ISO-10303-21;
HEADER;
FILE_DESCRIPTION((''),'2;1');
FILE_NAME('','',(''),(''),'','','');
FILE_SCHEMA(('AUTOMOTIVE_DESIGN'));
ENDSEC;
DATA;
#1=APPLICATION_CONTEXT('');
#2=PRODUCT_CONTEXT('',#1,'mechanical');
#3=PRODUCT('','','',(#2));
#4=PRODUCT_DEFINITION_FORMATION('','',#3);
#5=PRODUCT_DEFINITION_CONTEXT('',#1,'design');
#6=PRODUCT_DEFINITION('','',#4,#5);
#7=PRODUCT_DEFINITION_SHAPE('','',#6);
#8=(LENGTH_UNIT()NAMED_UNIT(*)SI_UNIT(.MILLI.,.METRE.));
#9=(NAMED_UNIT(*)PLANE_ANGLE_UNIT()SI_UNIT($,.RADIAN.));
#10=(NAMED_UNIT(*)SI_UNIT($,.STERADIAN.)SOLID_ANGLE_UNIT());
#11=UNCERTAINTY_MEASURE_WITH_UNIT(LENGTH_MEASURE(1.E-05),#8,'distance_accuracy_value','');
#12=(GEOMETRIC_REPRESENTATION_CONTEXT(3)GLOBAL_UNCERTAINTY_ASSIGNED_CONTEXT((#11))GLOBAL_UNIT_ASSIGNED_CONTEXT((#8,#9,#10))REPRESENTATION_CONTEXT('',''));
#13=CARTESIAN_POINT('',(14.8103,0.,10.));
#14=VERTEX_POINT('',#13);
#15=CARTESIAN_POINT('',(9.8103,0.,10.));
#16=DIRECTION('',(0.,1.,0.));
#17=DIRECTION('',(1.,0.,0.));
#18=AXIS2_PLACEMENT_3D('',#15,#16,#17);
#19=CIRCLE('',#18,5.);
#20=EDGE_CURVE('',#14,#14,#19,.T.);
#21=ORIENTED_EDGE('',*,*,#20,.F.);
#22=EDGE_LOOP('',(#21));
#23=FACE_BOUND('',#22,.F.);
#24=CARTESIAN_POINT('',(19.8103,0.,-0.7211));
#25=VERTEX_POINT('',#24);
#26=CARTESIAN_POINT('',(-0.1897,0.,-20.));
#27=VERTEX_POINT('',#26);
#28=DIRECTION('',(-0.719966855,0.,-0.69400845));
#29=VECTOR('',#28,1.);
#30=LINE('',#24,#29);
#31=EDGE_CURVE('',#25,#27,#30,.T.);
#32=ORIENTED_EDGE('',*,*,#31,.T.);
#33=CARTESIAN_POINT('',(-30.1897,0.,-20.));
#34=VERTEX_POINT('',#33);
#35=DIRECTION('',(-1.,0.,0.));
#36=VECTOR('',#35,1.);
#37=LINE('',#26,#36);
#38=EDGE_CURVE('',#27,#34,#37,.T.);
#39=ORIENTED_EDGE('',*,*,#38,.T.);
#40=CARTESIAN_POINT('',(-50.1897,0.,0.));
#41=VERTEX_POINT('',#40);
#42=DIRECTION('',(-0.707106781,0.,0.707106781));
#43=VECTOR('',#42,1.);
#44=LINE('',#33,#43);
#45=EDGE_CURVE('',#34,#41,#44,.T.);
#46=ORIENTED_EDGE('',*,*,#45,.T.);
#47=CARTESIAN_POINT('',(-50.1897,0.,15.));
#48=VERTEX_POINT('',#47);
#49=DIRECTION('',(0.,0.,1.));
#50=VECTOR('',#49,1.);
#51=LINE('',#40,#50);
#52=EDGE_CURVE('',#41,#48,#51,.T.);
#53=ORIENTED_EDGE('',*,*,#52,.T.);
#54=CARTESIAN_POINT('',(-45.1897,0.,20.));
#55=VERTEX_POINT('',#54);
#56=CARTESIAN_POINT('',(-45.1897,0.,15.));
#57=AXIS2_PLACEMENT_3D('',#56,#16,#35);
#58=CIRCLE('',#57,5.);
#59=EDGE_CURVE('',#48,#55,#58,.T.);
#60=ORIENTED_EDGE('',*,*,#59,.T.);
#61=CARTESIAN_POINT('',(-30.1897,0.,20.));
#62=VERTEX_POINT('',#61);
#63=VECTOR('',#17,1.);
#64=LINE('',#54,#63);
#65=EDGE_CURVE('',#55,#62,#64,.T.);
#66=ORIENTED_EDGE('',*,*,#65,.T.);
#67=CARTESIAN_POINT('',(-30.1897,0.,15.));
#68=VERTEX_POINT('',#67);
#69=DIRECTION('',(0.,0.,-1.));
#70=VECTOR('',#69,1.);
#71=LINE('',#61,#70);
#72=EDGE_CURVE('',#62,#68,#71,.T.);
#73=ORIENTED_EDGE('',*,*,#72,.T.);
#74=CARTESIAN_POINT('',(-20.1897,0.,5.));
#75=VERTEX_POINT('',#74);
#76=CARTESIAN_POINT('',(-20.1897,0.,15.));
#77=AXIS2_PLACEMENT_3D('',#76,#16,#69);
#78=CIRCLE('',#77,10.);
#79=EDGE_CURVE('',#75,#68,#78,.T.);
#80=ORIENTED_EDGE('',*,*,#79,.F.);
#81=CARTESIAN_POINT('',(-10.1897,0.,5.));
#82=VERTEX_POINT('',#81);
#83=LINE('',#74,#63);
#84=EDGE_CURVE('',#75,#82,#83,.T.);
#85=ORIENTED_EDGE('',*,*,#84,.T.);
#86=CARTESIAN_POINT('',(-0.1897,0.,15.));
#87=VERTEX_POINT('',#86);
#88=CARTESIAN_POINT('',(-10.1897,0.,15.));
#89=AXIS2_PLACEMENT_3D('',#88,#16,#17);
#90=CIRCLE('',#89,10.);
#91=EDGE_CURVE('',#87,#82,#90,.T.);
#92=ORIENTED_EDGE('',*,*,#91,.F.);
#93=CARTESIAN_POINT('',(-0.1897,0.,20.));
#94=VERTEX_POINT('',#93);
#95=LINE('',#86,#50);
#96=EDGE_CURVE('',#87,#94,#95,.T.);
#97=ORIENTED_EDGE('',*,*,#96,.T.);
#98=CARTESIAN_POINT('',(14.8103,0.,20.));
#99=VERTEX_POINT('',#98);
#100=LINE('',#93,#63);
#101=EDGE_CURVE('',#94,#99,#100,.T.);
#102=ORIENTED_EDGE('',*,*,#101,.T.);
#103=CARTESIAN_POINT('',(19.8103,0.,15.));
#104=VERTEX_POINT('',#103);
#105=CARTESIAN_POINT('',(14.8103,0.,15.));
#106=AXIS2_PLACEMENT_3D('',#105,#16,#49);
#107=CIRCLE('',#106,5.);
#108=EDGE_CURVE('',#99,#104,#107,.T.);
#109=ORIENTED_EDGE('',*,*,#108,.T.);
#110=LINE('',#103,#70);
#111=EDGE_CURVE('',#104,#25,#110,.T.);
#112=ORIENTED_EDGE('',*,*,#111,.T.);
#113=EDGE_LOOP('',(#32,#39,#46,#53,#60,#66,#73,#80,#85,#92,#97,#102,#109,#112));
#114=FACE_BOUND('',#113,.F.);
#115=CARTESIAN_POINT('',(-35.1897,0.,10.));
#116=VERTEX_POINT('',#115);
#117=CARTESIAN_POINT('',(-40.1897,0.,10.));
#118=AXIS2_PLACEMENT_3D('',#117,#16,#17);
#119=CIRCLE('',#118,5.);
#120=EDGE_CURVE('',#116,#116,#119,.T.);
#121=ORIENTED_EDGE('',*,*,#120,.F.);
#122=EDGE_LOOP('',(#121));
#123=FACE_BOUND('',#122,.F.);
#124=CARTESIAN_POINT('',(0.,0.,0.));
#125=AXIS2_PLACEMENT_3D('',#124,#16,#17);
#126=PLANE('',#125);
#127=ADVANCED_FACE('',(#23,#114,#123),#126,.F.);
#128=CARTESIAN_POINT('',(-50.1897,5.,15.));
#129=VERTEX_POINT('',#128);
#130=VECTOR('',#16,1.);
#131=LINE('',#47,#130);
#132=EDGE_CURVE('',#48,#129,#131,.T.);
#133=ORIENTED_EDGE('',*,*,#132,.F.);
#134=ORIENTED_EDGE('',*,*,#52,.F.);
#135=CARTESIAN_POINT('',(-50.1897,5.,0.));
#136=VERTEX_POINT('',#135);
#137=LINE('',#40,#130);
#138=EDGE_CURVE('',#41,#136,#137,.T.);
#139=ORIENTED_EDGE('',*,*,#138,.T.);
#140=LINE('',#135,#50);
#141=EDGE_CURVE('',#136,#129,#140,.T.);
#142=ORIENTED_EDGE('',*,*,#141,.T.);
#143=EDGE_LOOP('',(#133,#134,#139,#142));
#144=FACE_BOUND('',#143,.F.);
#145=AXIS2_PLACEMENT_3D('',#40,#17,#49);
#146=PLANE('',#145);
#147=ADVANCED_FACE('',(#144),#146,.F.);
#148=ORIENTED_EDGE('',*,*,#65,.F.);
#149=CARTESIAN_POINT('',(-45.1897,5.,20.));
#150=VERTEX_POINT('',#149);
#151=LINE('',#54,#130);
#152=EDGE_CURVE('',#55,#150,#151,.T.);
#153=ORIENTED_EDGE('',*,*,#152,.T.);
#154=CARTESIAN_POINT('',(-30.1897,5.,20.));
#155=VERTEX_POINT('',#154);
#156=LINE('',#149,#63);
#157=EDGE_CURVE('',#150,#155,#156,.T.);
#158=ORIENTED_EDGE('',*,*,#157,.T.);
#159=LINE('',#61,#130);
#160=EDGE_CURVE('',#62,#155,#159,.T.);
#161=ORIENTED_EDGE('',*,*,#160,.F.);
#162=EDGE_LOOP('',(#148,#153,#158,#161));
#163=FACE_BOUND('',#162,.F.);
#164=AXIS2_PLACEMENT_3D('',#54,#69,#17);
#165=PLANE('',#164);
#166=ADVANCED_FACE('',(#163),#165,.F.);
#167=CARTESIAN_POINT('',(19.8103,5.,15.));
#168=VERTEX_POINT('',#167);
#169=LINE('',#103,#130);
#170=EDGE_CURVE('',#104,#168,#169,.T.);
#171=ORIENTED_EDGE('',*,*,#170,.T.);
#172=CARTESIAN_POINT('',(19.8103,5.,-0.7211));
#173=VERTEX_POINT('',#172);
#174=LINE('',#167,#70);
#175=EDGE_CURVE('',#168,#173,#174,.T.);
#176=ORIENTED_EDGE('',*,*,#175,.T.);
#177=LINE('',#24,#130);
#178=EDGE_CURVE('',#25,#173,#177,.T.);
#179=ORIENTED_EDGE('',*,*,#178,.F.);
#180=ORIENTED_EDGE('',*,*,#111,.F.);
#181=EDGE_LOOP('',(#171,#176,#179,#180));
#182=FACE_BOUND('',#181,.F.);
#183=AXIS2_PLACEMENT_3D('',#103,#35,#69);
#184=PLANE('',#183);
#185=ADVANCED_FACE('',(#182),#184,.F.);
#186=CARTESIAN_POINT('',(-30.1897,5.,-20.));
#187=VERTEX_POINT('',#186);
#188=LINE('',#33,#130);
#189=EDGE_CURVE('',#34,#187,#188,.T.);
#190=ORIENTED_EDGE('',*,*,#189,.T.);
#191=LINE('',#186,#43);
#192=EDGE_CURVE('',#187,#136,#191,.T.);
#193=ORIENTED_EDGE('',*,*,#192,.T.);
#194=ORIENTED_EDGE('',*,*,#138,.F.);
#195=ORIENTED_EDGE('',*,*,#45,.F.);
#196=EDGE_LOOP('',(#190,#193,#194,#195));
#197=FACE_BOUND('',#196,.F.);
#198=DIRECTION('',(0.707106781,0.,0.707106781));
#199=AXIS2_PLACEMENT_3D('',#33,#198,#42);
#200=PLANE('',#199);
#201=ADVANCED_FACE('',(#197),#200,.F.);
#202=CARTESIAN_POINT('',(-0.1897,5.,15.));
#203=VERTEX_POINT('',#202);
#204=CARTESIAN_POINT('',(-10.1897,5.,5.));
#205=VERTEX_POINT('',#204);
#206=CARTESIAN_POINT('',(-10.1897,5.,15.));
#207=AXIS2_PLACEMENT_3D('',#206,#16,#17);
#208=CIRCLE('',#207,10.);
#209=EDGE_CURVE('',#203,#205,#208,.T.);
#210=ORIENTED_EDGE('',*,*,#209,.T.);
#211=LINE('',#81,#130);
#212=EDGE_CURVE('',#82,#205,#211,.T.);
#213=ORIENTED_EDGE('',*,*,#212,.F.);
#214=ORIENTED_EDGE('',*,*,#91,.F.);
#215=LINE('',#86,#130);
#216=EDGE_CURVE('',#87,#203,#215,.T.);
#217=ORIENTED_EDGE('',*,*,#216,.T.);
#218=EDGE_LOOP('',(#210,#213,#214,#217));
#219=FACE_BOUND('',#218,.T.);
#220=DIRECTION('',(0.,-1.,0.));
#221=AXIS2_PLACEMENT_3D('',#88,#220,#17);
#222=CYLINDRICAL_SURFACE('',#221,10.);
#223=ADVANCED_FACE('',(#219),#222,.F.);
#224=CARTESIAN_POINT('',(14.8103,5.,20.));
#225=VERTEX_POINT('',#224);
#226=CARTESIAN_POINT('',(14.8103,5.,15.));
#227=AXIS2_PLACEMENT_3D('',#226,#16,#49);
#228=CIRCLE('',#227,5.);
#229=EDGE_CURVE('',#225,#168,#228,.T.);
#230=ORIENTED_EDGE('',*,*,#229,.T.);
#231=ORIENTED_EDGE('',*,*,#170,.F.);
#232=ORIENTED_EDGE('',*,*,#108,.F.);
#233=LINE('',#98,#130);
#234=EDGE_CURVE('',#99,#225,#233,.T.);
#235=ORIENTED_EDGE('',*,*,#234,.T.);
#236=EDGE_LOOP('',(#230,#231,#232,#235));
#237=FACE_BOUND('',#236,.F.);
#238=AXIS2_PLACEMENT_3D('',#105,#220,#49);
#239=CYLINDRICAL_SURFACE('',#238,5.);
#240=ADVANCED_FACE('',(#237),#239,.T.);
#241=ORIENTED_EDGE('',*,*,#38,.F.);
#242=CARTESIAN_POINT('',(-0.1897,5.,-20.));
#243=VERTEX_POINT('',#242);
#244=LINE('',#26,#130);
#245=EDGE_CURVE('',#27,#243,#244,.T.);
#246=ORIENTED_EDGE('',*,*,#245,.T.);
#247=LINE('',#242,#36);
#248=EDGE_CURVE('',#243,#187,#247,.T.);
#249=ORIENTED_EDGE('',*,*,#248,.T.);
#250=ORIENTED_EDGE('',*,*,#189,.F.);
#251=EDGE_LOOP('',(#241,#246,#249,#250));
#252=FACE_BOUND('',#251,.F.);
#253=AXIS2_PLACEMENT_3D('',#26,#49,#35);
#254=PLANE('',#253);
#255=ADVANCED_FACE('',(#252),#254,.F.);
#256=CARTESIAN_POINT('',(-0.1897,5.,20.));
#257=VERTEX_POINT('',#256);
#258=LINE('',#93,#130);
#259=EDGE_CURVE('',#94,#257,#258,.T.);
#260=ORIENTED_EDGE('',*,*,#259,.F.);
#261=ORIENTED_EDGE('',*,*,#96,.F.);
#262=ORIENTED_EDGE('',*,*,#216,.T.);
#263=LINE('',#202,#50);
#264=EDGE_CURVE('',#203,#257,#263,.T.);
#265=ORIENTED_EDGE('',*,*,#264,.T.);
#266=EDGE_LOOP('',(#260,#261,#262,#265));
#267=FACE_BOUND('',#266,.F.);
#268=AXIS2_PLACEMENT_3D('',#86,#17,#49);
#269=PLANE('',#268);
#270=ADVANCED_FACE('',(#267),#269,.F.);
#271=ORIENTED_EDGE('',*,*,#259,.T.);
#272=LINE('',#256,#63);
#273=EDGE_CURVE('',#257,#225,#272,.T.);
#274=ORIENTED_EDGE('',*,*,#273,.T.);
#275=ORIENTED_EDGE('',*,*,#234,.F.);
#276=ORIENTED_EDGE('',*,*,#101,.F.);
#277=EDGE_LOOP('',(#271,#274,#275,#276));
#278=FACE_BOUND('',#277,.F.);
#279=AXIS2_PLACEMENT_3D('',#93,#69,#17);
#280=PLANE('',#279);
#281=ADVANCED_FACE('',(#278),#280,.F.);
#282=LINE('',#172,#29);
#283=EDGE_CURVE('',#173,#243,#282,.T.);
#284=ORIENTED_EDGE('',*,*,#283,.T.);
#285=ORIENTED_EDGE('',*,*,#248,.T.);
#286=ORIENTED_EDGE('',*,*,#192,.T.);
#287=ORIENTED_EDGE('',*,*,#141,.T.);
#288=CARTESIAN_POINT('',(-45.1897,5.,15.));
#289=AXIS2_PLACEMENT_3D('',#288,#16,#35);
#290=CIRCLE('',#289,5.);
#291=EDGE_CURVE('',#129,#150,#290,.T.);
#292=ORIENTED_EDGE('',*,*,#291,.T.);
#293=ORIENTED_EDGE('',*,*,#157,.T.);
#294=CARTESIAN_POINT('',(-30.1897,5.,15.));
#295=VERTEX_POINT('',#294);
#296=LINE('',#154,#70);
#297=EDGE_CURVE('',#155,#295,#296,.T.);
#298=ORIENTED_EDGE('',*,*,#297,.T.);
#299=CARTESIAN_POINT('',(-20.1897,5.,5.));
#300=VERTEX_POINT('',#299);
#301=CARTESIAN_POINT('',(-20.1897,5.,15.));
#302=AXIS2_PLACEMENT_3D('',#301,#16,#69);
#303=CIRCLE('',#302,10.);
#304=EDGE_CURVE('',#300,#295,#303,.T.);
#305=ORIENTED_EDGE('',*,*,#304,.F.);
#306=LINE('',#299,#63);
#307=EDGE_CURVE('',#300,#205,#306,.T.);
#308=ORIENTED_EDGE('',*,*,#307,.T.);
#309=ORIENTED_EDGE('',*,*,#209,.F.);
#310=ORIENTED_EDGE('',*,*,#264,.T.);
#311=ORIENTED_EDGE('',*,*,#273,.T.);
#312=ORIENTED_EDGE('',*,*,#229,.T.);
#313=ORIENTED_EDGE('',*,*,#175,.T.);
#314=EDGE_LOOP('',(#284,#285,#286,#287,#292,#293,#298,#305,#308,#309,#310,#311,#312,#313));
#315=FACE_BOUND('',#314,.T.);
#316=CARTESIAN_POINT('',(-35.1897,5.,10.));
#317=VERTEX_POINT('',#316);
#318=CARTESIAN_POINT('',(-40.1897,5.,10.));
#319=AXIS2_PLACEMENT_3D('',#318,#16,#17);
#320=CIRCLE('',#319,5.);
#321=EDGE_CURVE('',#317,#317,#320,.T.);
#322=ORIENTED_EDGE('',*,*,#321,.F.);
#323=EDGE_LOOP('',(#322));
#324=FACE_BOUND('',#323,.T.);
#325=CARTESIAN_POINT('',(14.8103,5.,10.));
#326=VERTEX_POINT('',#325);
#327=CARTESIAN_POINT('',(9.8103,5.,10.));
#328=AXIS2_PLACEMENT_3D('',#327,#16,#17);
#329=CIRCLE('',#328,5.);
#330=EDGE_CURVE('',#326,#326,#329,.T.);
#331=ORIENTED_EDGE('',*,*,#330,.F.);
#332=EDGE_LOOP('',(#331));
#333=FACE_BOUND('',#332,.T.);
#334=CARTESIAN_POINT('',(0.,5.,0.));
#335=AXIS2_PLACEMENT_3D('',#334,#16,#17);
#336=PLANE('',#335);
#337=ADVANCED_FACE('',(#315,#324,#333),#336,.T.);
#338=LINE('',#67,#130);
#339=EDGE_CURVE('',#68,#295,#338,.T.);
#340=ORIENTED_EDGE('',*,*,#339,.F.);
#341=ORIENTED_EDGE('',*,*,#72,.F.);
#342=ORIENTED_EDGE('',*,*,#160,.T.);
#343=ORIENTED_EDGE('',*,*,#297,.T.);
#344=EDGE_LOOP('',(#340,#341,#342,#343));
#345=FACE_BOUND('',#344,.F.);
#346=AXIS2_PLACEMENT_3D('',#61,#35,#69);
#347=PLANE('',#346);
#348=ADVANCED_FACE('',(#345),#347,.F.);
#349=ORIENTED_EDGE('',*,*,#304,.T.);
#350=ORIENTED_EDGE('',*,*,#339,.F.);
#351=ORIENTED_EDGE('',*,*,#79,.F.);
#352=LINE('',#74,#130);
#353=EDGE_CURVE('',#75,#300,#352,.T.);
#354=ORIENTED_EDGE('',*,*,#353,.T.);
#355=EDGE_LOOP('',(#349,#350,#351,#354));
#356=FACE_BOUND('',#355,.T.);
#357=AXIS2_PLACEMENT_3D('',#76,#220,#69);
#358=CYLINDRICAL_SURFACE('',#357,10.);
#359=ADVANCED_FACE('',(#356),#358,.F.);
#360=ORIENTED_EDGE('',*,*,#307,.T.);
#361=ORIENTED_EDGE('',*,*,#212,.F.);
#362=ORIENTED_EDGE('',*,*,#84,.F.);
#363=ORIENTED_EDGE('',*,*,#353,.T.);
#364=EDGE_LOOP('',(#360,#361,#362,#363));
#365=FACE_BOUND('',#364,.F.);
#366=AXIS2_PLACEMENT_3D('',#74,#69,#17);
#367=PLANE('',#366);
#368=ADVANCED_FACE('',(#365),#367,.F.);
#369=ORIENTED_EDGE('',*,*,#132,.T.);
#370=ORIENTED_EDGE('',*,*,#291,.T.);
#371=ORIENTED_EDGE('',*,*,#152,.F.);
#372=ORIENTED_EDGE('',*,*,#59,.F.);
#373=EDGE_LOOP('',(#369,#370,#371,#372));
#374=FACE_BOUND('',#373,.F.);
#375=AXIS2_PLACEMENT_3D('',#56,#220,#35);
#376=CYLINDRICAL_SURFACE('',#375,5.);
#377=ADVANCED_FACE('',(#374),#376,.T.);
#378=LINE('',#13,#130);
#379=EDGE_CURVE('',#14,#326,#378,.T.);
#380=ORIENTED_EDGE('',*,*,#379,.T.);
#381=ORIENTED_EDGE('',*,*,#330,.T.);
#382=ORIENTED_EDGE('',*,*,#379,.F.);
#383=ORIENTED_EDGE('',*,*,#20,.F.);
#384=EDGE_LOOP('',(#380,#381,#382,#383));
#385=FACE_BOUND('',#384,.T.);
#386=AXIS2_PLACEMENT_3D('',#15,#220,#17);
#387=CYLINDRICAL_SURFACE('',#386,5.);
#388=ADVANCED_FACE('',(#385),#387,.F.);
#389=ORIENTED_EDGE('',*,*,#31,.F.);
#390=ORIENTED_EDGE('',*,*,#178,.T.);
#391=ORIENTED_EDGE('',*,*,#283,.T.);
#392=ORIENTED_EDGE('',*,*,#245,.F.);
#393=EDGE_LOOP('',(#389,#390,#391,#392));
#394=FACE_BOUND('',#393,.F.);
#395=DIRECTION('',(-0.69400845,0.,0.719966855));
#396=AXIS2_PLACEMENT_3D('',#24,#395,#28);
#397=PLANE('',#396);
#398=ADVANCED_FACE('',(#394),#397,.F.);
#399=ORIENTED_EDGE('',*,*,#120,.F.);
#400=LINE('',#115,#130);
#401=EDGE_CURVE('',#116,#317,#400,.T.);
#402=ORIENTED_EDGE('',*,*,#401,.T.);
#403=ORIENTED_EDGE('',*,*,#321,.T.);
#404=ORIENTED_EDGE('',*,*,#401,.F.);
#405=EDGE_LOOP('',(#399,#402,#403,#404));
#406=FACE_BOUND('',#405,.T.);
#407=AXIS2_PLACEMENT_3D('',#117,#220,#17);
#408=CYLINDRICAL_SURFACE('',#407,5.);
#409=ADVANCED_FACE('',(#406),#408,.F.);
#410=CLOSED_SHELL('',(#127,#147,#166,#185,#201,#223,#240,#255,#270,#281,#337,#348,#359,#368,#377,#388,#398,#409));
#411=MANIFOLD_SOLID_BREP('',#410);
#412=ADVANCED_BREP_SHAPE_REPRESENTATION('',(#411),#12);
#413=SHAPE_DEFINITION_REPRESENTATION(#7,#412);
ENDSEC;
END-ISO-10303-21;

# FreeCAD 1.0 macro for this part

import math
import FreeCAD as App
import Part
import Sketcher

V = App.Vector

doc = App.newDocument("Part")
body = doc.addObject("PartDesign::Body", "Body")

# Sketch on XZ plane
sketch1 = body.newObject("Sketcher::SketchObject", "Sketch")
sketch1.AttachmentSupport = (doc.getObject("XZ_Plane"), [""])
sketch1.MapMode = "FlatFace"
sketch1.addGeometry([
    Part.LineSegment(V(-30.1897, -20, 0), V(-50.1897, 0, 0)),  # 0
    Part.LineSegment(V(-50.1897, 0, 0), V(-50.1897, 15, 0)),  # 1
    Part.ArcOfCircle(Part.Circle(V(-45.1897, 15, 0), V(0, 0, 1), 5), math.radians(90), math.radians(180)),  # 2
    Part.LineSegment(V(-45.1897, 20, 0), V(-30.1897, 20, 0)),  # 3
    Part.LineSegment(V(-30.1897, 20, 0), V(-30.1897, 15, 0)),  # 4
    Part.ArcOfCircle(Part.Circle(V(-20.1897, 15, 0), V(0, 0, 1), 10), math.radians(180), math.radians(270)),  # 5
    Part.LineSegment(V(-20.1897, 5, 0), V(-10.1897, 5, 0)),  # 6
    Part.ArcOfCircle(Part.Circle(V(-10.1897, 15, 0), V(0, 0, 1), 10), math.radians(-90), math.radians(0)),  # 7
    Part.LineSegment(V(-0.1897, 15, 0), V(-0.1897, 20, 0)),  # 8
    Part.LineSegment(V(-0.1897, 20, 0), V(14.8103, 20, 0)),  # 9
    Part.ArcOfCircle(Part.Circle(V(14.8103, 15, 0), V(0, 0, 1), 5), math.radians(0), math.radians(90)),  # 10
    Part.LineSegment(V(19.8103, 15, 0), V(19.8103, -0.7211, 0)),  # 11
    Part.LineSegment(V(19.8103, -0.7211, 0), V(-0.1897, -20, 0)),  # 12
    Part.LineSegment(V(-0.1897, -20, 0), V(-30.1897, -20, 0)),  # 13
    Part.Circle(V(-40.1897, 10, 0), V(0, 0, 1), 5),  # 14
    Part.Circle(V(9.8103, 10, 0), V(0, 0, 1), 5),  # 15
], False)
sketch1.addConstraint([
    Sketcher.Constraint("Coincident", 0, 2, 1, 1),
    Sketcher.Constraint("Tangent", 1, 2, 2, 2),
    Sketcher.Constraint("Tangent", 2, 1, 3, 1),
    Sketcher.Constraint("Coincident", 3, 2, 4, 1),
    Sketcher.Constraint("Tangent", 4, 2, 5, 1),
    Sketcher.Constraint("Tangent", 5, 2, 6, 1),
    Sketcher.Constraint("Tangent", 6, 2, 7, 1),
    Sketcher.Constraint("Tangent", 7, 2, 8, 1),
    Sketcher.Constraint("Coincident", 8, 2, 9, 1),
    Sketcher.Constraint("Tangent", 9, 2, 10, 2),
    Sketcher.Constraint("Tangent", 10, 1, 11, 1),
    Sketcher.Constraint("Coincident", 11, 2, 12, 1),
    Sketcher.Constraint("Coincident", 12, 2, 13, 1),
    Sketcher.Constraint("Coincident", 13, 2, 0, 1),
    Sketcher.Constraint("Vertical", 1),
    Sketcher.Constraint("Horizontal", 3),
    Sketcher.Constraint("Vertical", 4),
    Sketcher.Constraint("Horizontal", 6),
    Sketcher.Constraint("Vertical", 8),
    Sketcher.Constraint("Horizontal", 9),
    Sketcher.Constraint("Vertical", 11),
    Sketcher.Constraint("Horizontal", 13),
    Sketcher.Constraint("Equal", 5, 7),
    Sketcher.Constraint("Equal", 2, 10),
    Sketcher.Constraint("Equal", 10, 14),
    Sketcher.Constraint("Equal", 14, 15),
    Sketcher.Constraint("Symmetric", 8, 2, 12, 2, -1),
    Sketcher.Constraint("Symmetric", 3, 2, 13, 2, -1),
    Sketcher.Constraint("PointOnObject", 0, 2, -1),
    Sketcher.Constraint("Horizontal", 2, 3, 5, 3),
    Sketcher.Constraint("Horizontal", 14, 3, 15, 3),
    Sketcher.Constraint("Equal", 3, 9),
    Sketcher.Constraint("Equal", 9, 1),
    Sketcher.Constraint("Diameter", 14, 10.0),
    Sketcher.Constraint("Radius", 5, 10.0),
    Sketcher.Constraint("DistanceX", 3, 1, 3, 2, 15.0),
    Sketcher.Constraint("DistanceX", 6, 1, 6, 2, 10.0),
    Sketcher.Constraint("DistanceY", -1, 1, 14, 3, 10.0),
    Sketcher.Constraint("DistanceX", 2, 3, 14, 3, 5.0),
    Sketcher.Constraint("DistanceX", 15, 3, 10, 3, 5.0),
    Sketcher.Constraint("DistanceY", 11, 2, 11, 1, 15.721),
    Sketcher.Constraint("DistanceX", 2, 3, -1, 1, 45.1897),
])
pad1 = body.newObject("PartDesign::Pad", "Pad")
pad1.Profile = sketch1
pad1.Length = 5
pad1.Reversed = True

doc.recompute()
